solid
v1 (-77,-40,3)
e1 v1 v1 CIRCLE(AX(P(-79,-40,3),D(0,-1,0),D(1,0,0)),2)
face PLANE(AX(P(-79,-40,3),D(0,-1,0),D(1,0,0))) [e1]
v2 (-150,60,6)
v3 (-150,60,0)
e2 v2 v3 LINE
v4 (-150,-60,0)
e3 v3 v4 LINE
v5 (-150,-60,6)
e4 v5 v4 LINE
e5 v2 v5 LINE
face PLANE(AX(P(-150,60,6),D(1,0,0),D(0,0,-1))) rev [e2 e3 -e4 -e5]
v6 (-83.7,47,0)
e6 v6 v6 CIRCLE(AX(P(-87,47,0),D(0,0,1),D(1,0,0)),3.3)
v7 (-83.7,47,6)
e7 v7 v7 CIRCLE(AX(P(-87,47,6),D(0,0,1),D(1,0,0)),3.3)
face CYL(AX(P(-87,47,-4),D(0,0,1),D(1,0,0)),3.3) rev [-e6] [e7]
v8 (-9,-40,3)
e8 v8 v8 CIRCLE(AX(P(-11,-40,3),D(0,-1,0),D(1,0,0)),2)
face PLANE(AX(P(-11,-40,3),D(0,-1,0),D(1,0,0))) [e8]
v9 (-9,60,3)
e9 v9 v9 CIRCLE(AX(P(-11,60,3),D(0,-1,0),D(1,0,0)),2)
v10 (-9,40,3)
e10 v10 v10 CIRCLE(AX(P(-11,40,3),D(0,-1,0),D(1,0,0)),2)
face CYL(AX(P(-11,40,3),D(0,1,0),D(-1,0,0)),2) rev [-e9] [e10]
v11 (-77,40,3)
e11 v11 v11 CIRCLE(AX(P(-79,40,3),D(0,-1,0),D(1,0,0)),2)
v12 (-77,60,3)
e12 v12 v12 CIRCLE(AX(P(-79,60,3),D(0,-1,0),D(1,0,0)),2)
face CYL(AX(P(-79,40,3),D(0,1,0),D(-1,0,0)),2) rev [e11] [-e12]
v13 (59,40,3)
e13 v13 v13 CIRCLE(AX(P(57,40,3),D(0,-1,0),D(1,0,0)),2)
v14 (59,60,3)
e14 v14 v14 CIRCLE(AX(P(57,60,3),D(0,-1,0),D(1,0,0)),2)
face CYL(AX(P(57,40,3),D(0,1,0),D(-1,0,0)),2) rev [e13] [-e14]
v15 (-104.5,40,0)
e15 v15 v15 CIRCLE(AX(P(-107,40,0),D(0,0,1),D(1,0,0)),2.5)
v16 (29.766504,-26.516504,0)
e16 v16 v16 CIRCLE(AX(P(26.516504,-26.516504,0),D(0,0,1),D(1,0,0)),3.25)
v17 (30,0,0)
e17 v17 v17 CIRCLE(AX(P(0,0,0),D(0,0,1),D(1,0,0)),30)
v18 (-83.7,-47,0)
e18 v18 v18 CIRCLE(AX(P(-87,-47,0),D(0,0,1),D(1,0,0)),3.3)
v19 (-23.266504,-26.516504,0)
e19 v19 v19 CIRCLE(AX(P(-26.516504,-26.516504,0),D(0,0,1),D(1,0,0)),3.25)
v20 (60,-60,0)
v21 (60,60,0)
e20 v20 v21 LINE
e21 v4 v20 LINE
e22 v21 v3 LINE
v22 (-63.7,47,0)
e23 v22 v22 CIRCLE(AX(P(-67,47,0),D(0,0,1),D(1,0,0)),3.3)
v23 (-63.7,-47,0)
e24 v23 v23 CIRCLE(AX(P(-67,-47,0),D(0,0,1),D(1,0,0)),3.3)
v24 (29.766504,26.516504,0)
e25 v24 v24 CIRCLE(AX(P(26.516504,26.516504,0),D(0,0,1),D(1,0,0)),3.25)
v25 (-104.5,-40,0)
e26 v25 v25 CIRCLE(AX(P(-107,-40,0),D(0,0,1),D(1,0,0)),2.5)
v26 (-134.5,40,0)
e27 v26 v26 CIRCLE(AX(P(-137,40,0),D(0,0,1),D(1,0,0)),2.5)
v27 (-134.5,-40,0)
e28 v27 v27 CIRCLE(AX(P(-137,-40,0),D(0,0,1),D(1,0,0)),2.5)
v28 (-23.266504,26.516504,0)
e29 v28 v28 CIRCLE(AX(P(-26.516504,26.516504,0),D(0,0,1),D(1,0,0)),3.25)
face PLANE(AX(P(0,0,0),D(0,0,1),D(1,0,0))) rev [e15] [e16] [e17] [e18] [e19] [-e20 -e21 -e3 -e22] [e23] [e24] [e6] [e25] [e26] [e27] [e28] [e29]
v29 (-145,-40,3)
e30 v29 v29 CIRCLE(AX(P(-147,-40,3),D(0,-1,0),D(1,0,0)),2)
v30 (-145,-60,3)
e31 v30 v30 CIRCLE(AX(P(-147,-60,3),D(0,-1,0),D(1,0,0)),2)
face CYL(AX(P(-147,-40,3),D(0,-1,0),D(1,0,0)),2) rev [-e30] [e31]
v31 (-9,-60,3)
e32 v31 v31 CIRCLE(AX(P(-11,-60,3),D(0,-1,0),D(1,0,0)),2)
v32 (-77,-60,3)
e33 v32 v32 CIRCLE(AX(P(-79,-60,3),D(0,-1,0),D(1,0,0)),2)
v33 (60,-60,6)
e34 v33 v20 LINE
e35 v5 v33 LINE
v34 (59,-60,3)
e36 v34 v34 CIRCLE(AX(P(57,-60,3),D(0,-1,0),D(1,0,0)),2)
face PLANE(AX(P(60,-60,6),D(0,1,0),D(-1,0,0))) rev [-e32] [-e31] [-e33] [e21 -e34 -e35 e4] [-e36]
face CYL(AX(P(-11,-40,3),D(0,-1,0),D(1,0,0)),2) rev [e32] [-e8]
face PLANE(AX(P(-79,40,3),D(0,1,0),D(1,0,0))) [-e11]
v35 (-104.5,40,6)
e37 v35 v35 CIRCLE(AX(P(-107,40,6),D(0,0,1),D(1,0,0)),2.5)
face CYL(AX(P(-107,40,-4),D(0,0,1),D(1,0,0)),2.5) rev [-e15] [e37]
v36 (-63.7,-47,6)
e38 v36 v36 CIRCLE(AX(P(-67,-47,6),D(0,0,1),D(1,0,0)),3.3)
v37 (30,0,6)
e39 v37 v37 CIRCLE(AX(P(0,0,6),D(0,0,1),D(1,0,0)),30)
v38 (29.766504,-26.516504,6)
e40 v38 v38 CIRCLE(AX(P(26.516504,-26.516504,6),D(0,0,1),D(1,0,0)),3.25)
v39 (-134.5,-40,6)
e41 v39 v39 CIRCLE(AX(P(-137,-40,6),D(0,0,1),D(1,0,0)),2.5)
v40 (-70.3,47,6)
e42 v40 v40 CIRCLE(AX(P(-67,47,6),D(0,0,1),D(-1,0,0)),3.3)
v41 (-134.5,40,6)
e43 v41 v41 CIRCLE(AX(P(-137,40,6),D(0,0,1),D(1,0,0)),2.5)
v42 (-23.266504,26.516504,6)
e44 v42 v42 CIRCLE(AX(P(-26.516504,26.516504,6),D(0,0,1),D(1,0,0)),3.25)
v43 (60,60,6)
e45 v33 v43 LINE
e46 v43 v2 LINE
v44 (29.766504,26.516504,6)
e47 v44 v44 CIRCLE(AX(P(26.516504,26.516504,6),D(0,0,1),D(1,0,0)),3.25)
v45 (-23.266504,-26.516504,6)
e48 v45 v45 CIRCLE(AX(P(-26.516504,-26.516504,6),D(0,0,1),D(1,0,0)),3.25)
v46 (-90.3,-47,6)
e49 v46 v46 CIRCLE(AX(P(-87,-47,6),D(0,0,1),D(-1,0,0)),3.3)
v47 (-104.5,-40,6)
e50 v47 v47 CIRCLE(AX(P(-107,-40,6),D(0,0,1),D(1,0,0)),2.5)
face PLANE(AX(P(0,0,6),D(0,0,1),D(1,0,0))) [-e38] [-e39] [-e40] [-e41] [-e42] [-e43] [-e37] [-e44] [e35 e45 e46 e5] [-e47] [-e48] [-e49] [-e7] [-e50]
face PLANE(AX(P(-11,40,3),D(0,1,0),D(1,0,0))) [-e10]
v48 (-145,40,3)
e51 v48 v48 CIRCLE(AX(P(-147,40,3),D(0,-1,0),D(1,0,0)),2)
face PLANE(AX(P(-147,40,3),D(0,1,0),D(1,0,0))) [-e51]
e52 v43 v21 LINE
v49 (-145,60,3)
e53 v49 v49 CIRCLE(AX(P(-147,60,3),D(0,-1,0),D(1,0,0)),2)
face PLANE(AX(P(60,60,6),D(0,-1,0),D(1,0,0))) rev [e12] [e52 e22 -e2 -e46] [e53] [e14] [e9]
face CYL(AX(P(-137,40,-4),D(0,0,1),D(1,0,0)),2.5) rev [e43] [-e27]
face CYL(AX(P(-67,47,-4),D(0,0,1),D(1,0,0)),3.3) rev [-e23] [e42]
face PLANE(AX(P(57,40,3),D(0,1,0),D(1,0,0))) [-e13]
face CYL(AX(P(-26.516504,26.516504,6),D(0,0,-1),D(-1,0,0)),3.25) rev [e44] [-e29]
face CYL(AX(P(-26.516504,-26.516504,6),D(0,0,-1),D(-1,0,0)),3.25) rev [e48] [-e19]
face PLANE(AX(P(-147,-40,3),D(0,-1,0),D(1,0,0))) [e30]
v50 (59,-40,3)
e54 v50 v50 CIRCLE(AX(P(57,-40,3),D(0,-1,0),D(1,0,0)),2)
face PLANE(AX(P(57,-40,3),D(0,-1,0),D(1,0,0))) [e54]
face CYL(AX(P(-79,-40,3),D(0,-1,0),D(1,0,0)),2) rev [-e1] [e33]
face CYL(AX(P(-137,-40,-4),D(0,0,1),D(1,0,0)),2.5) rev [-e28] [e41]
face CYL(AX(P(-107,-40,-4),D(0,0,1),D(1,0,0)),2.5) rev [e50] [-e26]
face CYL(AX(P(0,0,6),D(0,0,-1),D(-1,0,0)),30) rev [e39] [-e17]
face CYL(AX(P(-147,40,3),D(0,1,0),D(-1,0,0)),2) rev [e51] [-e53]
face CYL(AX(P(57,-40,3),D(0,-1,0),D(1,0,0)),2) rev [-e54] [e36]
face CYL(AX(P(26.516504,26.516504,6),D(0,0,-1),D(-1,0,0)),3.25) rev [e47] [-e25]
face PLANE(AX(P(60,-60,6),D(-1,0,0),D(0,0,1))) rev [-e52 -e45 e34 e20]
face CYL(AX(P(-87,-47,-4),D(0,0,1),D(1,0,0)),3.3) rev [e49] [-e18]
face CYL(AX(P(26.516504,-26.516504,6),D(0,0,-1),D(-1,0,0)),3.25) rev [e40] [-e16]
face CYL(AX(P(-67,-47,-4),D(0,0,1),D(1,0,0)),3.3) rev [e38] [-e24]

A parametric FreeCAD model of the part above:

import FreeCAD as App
import Part
import Sketcher


def add_polygon(sketch, points):
    """Adds a closed chain of lines whose ends are joined by coincident constraints."""
    first, n = sketch.GeometryCount, len(points)
    for a, b in zip(points, points[1:] + points[:1]):
        sketch.addGeometry(Part.LineSegment(App.Vector(*a, 0), App.Vector(*b, 0)), False)
    for i in range(n):
        sketch.addConstraint(Sketcher.Constraint("Coincident", first + i, 2, first + (i + 1) % n, 1))

doc = App.newDocument("Part")
body = doc.addObject("PartDesign::Body", "Body")

# Sketch on XY plane
sketch1 = body.newObject("Sketcher::SketchObject", "Sketch")
sketch1.AttachmentSupport = (doc.getObject("XY_Plane"), [""])
sketch1.MapMode = "FlatFace"
add_polygon(sketch1, [(-150, 60), (-150, -60), (60, -60), (60, 60)])  # lines 0-3
sketch1.addGeometry(Part.Circle(App.Vector(-26.5, -26.5, 0), App.Vector(0, 0, 1), 3.2), False)  # 4
sketch1.addGeometry(Part.Circle(App.Vector(26.5, -26.5, 0), App.Vector(0, 0, 1), 3.2), False)  # 5
sketch1.addGeometry(Part.Circle(App.Vector(-26.5, 26.5, 0), App.Vector(0, 0, 1), 3.2), False)  # 6
sketch1.addGeometry(Part.Circle(App.Vector(0, 0, 0), App.Vector(0, 0, 1), 30), False)  # 7
sketch1.addGeometry(Part.Circle(App.Vector(26.5, 26.5, 0), App.Vector(0, 0, 1), 3.2), False)  # 8
sketch1.addConstraint([
    Sketcher.Constraint("Vertical", 0),
    Sketcher.Constraint("Horizontal", 1),
    Sketcher.Constraint("Vertical", 2),
    Sketcher.Constraint("Horizontal", 3),
    Sketcher.Constraint("Coincident", 7, 3, -1, 1),
    Sketcher.Constraint("Equal", 4, 5),
    Sketcher.Constraint("Equal", 5, 6),
    Sketcher.Constraint("Equal", 6, 8),
    Sketcher.Constraint("Symmetric", 5, 3, 6, 3, -1, 1),
    Sketcher.Constraint("Symmetric", 4, 3, 8, 3, -1, 1),
    Sketcher.Constraint("Symmetric", 4, 3, 5, 3, -2),
    Sketcher.Constraint("Diameter", 7, 60.0),
    Sketcher.Constraint("Diameter", 4, 6.5),
    Sketcher.Constraint("DistanceX", 1, 1, 1, 2, 210.0),
    Sketcher.Constraint("DistanceY", 0, 2, 0, 1, 120.0),
    Sketcher.Constraint("DistanceX", 0, 2, -1, 1, 150.0),
    Sketcher.Constraint("DistanceY", 0, 2, -1, 1, 60.0),
    Sketcher.Constraint("DistanceX", 4, 3, 5, 3, 53.033009),
    Sketcher.Constraint("DistanceY", 4, 3, 6, 3, 53.033009),
])
pad1 = body.newObject("PartDesign::Pad", "Pad")
pad1.Profile = sketch1
pad1.Length = 6

# Sketch on XY plane
sketch2 = body.newObject("Sketcher::SketchObject", "Sketch001")
sketch2.AttachmentSupport = (doc.getObject("XY_Plane"), [""])
sketch2.MapMode = "FlatFace"
sketch2.AttachmentOffset = App.Placement(App.Vector(0, 0, 6), App.Rotation())
sketch2.addGeometry([
    Part.Circle(App.Vector(-137, 40, 0), App.Vector(0, 0, 1), 2.5),
    Part.Circle(App.Vector(-107, 40, 0), App.Vector(0, 0, 1), 2.5),
    Part.Circle(App.Vector(-107, -40, 0), App.Vector(0, 0, 1), 2.5),
    Part.Circle(App.Vector(-137, -40, 0), App.Vector(0, 0, 1), 2.5),
], False)
sketch2.addConstraint([
    Sketcher.Constraint("Equal", 0, 1),
    Sketcher.Constraint("Equal", 1, 2),
    Sketcher.Constraint("Equal", 2, 3),
    Sketcher.Constraint("Symmetric", 1, 3, 2, 3, -1),
    Sketcher.Constraint("Symmetric", 0, 3, 3, 3, -1),
    Sketcher.Constraint("Horizontal", 0, 3, 1, 3),
    Sketcher.Constraint("Diameter", 0, 5.0),
    Sketcher.Constraint("DistanceX", 0, 3, -1, 1, 137.0),
    Sketcher.Constraint("DistanceY", -1, 1, 0, 3, 40.0),
    Sketcher.Constraint("DistanceX", 1, 3, -1, 1, 107.0),
])
pocket1 = body.newObject("PartDesign::Pocket", "Pocket")
pocket1.Profile = sketch2
pocket1.Length = 10

# Sketch on XZ plane
sketch3 = body.newObject("Sketcher::SketchObject", "Sketch002")
sketch3.AttachmentSupport = (doc.getObject("XZ_Plane"), [""])
sketch3.MapMode = "FlatFace"
sketch3.AttachmentOffset = App.Placement(App.Vector(0, 0, 60), App.Rotation())
sketch3.addGeometry([
    Part.Circle(App.Vector(57, 3, 0), App.Vector(0, 0, 1), 2),
    Part.Circle(App.Vector(-11, 3, 0), App.Vector(0, 0, 1), 2),
    Part.Circle(App.Vector(-79, 3, 0), App.Vector(0, 0, 1), 2),
    Part.Circle(App.Vector(-147, 3, 0), App.Vector(0, 0, 1), 2),
], False)
sketch3.addConstraint([
    Sketcher.Constraint("Equal", 0, 1),
    Sketcher.Constraint("Equal", 1, 2),
    Sketcher.Constraint("Equal", 2, 3),
    Sketcher.Constraint("Horizontal", 0, 3, 1, 3),
    Sketcher.Constraint("Horizontal", 1, 3, 2, 3),
    Sketcher.Constraint("Horizontal", 2, 3, 3, 3),
    Sketcher.Constraint("Diameter", 0, 4.0),
    Sketcher.Constraint("DistanceX", -1, 1, 0, 3, 57.0),
    Sketcher.Constraint("DistanceY", -1, 1, 0, 3, 3.0),
    Sketcher.Constraint("DistanceX", 1, 3, -1, 1, 11.0),
    Sketcher.Constraint("DistanceX", 2, 3, -1, 1, 79.0),
    Sketcher.Constraint("DistanceX", 3, 3, -1, 1, 147.0),
])
pocket2 = body.newObject("PartDesign::Pocket", "Pocket001")
pocket2.Profile = sketch3
pocket2.Length = 20
doc.recompute()

mirrored = body.newObject("PartDesign::Mirrored", "Mirrored")
mirrored.Originals = [pocket2]
mirrored.MirrorPlane = (doc.getObject("XZ_Plane"), [""])
body.Tip = mirrored

# Sketch on XY plane
sketch4 = body.newObject("Sketcher::SketchObject", "Sketch003")
sketch4.AttachmentSupport = (doc.getObject("XY_Plane"), [""])
sketch4.MapMode = "FlatFace"
sketch4.AttachmentOffset = App.Placement(App.Vector(0, 0, 6), App.Rotation())
sketch4.addGeometry([
    Part.Circle(App.Vector(-87, 47, 0), App.Vector(0, 0, 1), 3.3),
    Part.Circle(App.Vector(-67, 47, 0), App.Vector(0, 0, 1), 3.3),
    Part.Circle(App.Vector(-67, -47, 0), App.Vector(0, 0, 1), 3.3),
    Part.Circle(App.Vector(-87, -47, 0), App.Vector(0, 0, 1), 3.3),
], False)
sketch4.addConstraint([
    Sketcher.Constraint("Equal", 0, 1),
    Sketcher.Constraint("Equal", 1, 2),
    Sketcher.Constraint("Equal", 2, 3),
    Sketcher.Constraint("Symmetric", 1, 3, 2, 3, -1),
    Sketcher.Constraint("Symmetric", 0, 3, 3, 3, -1),
    Sketcher.Constraint("Horizontal", 0, 3, 1, 3),
    Sketcher.Constraint("Diameter", 0, 6.6),
    Sketcher.Constraint("DistanceX", 0, 3, -1, 1, 87.0),
    Sketcher.Constraint("DistanceY", -1, 1, 0, 3, 47.0),
    Sketcher.Constraint("DistanceX", 1, 3, -1, 1, 67.0),
])
pocket3 = body.newObject("PartDesign::Pocket", "Pocket002")
pocket3.Profile = sketch4
pocket3.Length = 10

doc.recompute()
